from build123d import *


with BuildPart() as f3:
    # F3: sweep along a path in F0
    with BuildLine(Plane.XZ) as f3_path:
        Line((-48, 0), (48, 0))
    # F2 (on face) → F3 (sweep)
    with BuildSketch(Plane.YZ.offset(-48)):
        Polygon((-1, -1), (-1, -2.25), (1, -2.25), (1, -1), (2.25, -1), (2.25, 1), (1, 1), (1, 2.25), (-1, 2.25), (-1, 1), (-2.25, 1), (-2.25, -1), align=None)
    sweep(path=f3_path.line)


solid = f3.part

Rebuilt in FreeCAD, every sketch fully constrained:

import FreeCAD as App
import Part
import Sketcher

doc = App.newDocument("Part")
params = doc.addObject("Spreadsheet::Sheet", "Params")
for row, (alias, value) in enumerate([
    ("sketch1_width", "2 mm"),
    ("sketch1_width2", "1.25 mm"),
    ("sketch2_width", "96 mm"),
], start=1):
    params.set(f"A{row}", alias)
    params.set(f"B{row}", "=" + value)
    params.setAlias(f"B{row}", alias)

body = doc.addObject("PartDesign::Body", "Body")

sketch1 = body.newObject("Sketcher::SketchObject", "Sketch")
sketch1.AttachmentSupport = (doc.getObject("YZ_Plane"), [""])
sketch1.MapMode = "FlatFace"
sketch1.AttachmentOffset = App.Placement(App.Vector(0, 0, -48), App.Rotation())
sketch1.addGeometry([
    Part.LineSegment(App.Vector(-1, -1, 0), App.Vector(-1, -2.2, 0)),
    Part.LineSegment(App.Vector(-1, -2.2, 0), App.Vector(1, -2.2, 0)),
    Part.LineSegment(App.Vector(1, -2.2, 0), App.Vector(1, -1, 0)),
    Part.LineSegment(App.Vector(1, -1, 0), App.Vector(2.2, -1, 0)),
    Part.LineSegment(App.Vector(2.2, -1, 0), App.Vector(2.2, 1, 0)),
    Part.LineSegment(App.Vector(2.2, 1, 0), App.Vector(1, 1, 0)),
    Part.LineSegment(App.Vector(1, 1, 0), App.Vector(1, 2.2, 0)),
    Part.LineSegment(App.Vector(1, 2.2, 0), App.Vector(-1, 2.2, 0)),
    Part.LineSegment(App.Vector(-1, 2.2, 0), App.Vector(-1, 1, 0)),
    Part.LineSegment(App.Vector(-1, 1, 0), App.Vector(-2.2, 1, 0)),
    Part.LineSegment(App.Vector(-2.2, 1, 0), App.Vector(-2.2, -1, 0)),
    Part.LineSegment(App.Vector(-2.2, -1, 0), App.Vector(-1, -1, 0)),
], False)
sketch1.addConstraint([
    Sketcher.Constraint("Coincident", 0, 2, 1, 1),
    Sketcher.Constraint("Coincident", 1, 2, 2, 1),
    Sketcher.Constraint("Coincident", 2, 2, 3, 1),
    Sketcher.Constraint("Coincident", 3, 2, 4, 1),
    Sketcher.Constraint("Coincident", 4, 2, 5, 1),
    Sketcher.Constraint("Coincident", 5, 2, 6, 1),
    Sketcher.Constraint("Coincident", 6, 2, 7, 1),
    Sketcher.Constraint("Coincident", 7, 2, 8, 1),
    Sketcher.Constraint("Coincident", 8, 2, 9, 1),
    Sketcher.Constraint("Coincident", 9, 2, 10, 1),
    Sketcher.Constraint("Coincident", 10, 2, 11, 1),
    Sketcher.Constraint("Coincident", 11, 2, 0, 1),
    Sketcher.Constraint("Vertical", 0),
    Sketcher.Constraint("Horizontal", 1),
    Sketcher.Constraint("Vertical", 2),
    Sketcher.Constraint("Horizontal", 3),
    Sketcher.Constraint("Vertical", 4),
    Sketcher.Constraint("Horizontal", 5),
    Sketcher.Constraint("Vertical", 6),
    Sketcher.Constraint("Horizontal", 7),
    Sketcher.Constraint("Vertical", 8),
    Sketcher.Constraint("Horizontal", 9),
    Sketcher.Constraint("Vertical", 10),
    Sketcher.Constraint("Horizontal", 11),
    Sketcher.Constraint("Symmetric", 0, 2, 6, 2, -1, 1),
    Sketcher.Constraint("Symmetric", 2, 2, 8, 2, -1, 1),
    Sketcher.Constraint("Symmetric", 4, 2, 10, 2, -1, 1),
    Sketcher.Constraint("Symmetric", 5, 2, 8, 2, -2),
    Sketcher.Constraint("Equal", 11, 0),
    Sketcher.Constraint("Equal", 7, 4),
    Sketcher.Constraint("DistanceX", 1, 1, 1, 2, 2.0),
    Sketcher.Constraint("DistanceX", 3, 1, 3, 2, 1.25),
])
sketch1.setExpression("Constraints[30]", "Params.sketch1_width")
sketch1.setExpression("Constraints[31]", "Params.sketch1_width2")

sketch2 = body.newObject("Sketcher::SketchObject", "Sketch001")
sketch2.AttachmentSupport = (doc.getObject("XY_Plane"), [""])
sketch2.MapMode = "FlatFace"
sketch2.addGeometry(Part.LineSegment(App.Vector(-48, 0, 0), App.Vector(48, 0, 0)), False)
sketch2.addConstraint([
    Sketcher.Constraint("Horizontal", 0),
    Sketcher.Constraint("Symmetric", 0, 1, 0, 2, -1, 1),
    Sketcher.Constraint("DistanceX", 0, 1, 0, 2, 96.0),
])
sketch2.setExpression("Constraints[2]", "Params.sketch2_width")
doc.recompute()

additivepipe = body.newObject("PartDesign::AdditivePipe", "AdditivePipe")
additivepipe.Profile = sketch1
additivepipe.Spine = (sketch2, ["Edge1"])

doc.recompute()
